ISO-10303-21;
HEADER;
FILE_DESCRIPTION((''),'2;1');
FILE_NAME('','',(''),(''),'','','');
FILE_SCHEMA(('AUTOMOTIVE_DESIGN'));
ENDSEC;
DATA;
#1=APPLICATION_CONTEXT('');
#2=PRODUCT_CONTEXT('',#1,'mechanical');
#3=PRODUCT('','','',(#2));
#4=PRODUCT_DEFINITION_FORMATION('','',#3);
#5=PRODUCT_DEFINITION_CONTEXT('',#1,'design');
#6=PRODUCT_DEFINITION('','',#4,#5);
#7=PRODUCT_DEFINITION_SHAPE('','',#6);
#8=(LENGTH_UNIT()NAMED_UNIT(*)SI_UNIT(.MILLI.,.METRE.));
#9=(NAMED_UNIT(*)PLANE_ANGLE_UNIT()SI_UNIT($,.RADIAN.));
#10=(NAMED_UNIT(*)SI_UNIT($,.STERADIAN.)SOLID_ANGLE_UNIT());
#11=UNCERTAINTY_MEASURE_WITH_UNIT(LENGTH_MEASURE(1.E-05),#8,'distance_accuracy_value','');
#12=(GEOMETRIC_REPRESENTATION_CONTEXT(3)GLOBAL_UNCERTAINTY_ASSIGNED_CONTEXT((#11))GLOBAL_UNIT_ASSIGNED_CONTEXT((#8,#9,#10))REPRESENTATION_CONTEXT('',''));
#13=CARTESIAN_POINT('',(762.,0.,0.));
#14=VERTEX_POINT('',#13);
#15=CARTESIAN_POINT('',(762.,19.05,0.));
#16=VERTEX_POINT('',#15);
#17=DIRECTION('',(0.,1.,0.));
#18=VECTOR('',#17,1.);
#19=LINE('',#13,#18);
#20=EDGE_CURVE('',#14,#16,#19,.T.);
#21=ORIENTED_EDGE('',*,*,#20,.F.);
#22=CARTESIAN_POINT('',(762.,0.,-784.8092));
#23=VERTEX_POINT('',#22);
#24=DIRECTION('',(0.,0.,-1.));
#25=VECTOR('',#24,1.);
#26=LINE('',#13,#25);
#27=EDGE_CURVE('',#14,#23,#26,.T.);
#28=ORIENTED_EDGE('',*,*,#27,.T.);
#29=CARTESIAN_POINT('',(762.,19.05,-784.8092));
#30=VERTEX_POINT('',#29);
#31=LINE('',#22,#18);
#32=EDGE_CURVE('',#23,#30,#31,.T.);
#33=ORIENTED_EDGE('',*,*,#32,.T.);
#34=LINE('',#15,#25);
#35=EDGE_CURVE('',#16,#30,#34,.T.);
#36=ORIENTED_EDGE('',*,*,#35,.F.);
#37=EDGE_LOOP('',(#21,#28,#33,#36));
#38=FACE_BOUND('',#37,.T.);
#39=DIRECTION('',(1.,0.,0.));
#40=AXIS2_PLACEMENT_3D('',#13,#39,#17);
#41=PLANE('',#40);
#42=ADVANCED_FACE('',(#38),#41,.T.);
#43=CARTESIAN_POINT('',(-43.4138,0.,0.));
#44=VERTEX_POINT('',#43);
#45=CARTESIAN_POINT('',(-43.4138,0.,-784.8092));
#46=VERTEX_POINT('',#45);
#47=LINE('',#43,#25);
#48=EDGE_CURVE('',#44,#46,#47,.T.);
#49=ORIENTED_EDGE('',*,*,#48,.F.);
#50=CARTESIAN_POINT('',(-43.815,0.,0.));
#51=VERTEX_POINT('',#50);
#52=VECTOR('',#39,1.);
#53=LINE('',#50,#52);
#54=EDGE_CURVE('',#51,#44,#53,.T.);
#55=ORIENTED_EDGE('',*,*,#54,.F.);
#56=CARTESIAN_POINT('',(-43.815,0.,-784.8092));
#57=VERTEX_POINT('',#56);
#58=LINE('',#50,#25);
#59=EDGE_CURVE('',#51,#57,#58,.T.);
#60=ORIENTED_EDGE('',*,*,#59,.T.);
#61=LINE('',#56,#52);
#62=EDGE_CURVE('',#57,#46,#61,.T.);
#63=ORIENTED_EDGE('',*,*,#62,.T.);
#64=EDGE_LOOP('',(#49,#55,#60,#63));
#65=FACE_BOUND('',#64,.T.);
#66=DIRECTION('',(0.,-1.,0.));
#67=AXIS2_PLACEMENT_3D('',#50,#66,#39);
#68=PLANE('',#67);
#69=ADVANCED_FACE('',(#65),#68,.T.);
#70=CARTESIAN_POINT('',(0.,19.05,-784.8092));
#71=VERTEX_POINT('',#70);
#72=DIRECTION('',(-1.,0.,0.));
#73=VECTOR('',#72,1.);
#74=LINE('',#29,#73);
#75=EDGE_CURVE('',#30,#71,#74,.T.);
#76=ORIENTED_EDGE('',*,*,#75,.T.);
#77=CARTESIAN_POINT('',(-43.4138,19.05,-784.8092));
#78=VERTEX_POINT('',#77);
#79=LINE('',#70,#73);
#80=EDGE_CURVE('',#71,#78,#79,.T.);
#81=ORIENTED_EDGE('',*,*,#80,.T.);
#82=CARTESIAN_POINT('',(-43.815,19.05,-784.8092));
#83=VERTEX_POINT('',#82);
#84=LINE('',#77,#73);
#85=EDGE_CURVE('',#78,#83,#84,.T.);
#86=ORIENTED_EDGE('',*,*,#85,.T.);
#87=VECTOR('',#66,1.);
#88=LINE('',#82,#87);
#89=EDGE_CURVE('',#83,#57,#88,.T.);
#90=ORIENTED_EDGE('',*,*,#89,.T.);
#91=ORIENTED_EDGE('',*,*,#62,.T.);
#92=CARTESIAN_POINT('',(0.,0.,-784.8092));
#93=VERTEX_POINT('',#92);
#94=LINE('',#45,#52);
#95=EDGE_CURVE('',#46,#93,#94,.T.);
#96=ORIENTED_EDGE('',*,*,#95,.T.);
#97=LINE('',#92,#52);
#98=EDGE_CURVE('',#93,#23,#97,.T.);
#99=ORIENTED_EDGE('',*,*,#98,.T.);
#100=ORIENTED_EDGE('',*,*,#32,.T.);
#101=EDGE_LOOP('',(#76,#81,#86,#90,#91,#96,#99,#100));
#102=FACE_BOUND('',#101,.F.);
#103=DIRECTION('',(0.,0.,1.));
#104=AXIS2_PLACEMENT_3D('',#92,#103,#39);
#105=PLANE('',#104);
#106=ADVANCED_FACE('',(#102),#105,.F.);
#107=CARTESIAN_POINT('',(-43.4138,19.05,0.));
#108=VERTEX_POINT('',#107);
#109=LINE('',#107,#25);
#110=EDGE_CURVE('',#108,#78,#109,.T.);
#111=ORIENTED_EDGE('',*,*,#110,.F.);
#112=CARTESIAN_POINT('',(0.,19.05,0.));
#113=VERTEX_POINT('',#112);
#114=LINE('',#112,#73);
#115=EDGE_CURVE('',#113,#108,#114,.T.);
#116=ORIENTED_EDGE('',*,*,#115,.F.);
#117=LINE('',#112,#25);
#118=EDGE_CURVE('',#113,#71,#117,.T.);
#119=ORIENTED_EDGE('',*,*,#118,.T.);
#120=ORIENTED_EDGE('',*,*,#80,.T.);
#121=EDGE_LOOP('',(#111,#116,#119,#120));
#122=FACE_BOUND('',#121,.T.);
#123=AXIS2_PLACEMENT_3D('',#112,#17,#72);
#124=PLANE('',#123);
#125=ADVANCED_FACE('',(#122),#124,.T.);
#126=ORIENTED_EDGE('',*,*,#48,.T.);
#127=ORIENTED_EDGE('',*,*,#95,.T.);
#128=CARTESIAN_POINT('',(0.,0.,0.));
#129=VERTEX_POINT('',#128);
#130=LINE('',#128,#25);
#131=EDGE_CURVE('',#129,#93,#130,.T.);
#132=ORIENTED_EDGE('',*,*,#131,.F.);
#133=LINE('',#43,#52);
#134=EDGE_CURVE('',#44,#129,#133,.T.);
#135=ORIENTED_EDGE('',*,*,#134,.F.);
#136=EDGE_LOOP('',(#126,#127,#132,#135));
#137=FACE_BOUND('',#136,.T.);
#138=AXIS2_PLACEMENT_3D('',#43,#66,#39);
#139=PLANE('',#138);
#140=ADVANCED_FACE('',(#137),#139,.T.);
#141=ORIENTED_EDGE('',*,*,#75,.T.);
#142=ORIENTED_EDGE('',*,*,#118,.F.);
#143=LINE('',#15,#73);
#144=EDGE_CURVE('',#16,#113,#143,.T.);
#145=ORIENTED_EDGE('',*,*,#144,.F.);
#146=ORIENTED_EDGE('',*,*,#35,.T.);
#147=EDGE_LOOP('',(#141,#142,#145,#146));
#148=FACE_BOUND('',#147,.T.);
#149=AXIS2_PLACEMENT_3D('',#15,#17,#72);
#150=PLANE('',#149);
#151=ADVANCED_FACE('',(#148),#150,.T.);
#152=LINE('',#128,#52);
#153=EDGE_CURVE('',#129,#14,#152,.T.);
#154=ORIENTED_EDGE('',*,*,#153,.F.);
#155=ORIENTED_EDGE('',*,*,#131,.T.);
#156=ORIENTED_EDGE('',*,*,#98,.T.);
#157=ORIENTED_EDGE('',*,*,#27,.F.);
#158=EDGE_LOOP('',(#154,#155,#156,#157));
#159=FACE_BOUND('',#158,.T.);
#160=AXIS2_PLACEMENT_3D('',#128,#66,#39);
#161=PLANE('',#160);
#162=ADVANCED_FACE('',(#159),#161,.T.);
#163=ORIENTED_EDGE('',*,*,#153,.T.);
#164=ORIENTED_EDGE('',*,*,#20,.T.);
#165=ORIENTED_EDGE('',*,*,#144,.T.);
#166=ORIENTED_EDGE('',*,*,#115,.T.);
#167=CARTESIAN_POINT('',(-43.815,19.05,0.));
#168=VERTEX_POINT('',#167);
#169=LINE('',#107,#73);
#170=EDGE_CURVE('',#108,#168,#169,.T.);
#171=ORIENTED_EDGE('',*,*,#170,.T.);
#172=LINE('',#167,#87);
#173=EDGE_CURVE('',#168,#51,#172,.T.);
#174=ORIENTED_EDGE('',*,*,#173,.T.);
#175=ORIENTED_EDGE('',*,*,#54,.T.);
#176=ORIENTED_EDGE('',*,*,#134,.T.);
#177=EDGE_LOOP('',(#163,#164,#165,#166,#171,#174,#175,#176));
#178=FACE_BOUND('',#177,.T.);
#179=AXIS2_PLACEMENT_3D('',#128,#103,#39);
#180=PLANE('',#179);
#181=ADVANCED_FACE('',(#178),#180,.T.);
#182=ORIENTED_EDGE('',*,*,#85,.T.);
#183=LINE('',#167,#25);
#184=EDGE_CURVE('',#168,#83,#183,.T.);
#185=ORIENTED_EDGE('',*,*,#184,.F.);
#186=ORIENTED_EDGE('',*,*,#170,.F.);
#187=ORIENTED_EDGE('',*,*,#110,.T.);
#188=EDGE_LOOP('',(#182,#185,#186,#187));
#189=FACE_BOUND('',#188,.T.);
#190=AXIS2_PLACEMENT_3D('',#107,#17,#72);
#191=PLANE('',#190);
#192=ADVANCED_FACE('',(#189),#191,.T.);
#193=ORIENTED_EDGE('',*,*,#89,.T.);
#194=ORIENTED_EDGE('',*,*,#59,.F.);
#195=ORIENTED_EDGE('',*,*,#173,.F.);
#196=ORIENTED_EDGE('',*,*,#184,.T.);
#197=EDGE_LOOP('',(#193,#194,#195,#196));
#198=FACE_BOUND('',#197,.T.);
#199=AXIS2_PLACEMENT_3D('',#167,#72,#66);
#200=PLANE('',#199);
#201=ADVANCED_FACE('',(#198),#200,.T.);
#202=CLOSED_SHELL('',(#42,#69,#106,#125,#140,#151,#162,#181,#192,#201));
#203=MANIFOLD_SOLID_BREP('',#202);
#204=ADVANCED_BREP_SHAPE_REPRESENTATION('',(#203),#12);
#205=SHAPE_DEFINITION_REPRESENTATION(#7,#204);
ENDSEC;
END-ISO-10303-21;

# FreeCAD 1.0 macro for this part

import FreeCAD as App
import Part
import Sketcher
Q = App.Units.Quantity


def add_polygon(sketch, points):
    """Adds a closed chain of lines whose ends are joined by coincident constraints."""
    first, n = sketch.GeometryCount, len(points)
    for a, b in zip(points, points[1:] + points[:1]):
        sketch.addGeometry(Part.LineSegment(App.Vector(*a, 0), App.Vector(*b, 0)), False)
    for i in range(n):
        sketch.addConstraint(Sketcher.Constraint("Coincident", first + i, 2, first + (i + 1) % n, 1))

doc = App.newDocument("Part")
body = doc.addObject("PartDesign::Body", "Body")

# Sketch on XY plane
sketch1 = body.newObject("Sketcher::SketchObject", "Sketch")
sketch1.AttachmentSupport = (doc.getObject("XY_Plane"), [""])
sketch1.MapMode = "FlatFace"
add_polygon(sketch1, [(-43.815, 0), (762, 0), (762, 19.05), (-43.815, 19.05)])  # lines 0-3
sketch1.addConstraint([
    Sketcher.Constraint("Horizontal", 0),
    Sketcher.Constraint("Vertical", 1),
    Sketcher.Constraint("Horizontal", 2),
    Sketcher.Constraint("Vertical", 3),
    Sketcher.Constraint("PointOnObject", 0, 2, -1),
    Sketcher.Constraint("DistanceX", -1, 1, 0, 2, Q("30 in")),
    Sketcher.Constraint("DistanceY", 1, 1, 1, 2, Q("0.75 in")),
    Sketcher.Constraint("DistanceX", 0, 1, 0, 2, Q("31.725 in")),
])
pad1 = body.newObject("PartDesign::Pad", "Pad")
pad1.Profile = sketch1
pad1.Length = Q("30.898 in")
pad1.Reversed = True

doc.recompute()
